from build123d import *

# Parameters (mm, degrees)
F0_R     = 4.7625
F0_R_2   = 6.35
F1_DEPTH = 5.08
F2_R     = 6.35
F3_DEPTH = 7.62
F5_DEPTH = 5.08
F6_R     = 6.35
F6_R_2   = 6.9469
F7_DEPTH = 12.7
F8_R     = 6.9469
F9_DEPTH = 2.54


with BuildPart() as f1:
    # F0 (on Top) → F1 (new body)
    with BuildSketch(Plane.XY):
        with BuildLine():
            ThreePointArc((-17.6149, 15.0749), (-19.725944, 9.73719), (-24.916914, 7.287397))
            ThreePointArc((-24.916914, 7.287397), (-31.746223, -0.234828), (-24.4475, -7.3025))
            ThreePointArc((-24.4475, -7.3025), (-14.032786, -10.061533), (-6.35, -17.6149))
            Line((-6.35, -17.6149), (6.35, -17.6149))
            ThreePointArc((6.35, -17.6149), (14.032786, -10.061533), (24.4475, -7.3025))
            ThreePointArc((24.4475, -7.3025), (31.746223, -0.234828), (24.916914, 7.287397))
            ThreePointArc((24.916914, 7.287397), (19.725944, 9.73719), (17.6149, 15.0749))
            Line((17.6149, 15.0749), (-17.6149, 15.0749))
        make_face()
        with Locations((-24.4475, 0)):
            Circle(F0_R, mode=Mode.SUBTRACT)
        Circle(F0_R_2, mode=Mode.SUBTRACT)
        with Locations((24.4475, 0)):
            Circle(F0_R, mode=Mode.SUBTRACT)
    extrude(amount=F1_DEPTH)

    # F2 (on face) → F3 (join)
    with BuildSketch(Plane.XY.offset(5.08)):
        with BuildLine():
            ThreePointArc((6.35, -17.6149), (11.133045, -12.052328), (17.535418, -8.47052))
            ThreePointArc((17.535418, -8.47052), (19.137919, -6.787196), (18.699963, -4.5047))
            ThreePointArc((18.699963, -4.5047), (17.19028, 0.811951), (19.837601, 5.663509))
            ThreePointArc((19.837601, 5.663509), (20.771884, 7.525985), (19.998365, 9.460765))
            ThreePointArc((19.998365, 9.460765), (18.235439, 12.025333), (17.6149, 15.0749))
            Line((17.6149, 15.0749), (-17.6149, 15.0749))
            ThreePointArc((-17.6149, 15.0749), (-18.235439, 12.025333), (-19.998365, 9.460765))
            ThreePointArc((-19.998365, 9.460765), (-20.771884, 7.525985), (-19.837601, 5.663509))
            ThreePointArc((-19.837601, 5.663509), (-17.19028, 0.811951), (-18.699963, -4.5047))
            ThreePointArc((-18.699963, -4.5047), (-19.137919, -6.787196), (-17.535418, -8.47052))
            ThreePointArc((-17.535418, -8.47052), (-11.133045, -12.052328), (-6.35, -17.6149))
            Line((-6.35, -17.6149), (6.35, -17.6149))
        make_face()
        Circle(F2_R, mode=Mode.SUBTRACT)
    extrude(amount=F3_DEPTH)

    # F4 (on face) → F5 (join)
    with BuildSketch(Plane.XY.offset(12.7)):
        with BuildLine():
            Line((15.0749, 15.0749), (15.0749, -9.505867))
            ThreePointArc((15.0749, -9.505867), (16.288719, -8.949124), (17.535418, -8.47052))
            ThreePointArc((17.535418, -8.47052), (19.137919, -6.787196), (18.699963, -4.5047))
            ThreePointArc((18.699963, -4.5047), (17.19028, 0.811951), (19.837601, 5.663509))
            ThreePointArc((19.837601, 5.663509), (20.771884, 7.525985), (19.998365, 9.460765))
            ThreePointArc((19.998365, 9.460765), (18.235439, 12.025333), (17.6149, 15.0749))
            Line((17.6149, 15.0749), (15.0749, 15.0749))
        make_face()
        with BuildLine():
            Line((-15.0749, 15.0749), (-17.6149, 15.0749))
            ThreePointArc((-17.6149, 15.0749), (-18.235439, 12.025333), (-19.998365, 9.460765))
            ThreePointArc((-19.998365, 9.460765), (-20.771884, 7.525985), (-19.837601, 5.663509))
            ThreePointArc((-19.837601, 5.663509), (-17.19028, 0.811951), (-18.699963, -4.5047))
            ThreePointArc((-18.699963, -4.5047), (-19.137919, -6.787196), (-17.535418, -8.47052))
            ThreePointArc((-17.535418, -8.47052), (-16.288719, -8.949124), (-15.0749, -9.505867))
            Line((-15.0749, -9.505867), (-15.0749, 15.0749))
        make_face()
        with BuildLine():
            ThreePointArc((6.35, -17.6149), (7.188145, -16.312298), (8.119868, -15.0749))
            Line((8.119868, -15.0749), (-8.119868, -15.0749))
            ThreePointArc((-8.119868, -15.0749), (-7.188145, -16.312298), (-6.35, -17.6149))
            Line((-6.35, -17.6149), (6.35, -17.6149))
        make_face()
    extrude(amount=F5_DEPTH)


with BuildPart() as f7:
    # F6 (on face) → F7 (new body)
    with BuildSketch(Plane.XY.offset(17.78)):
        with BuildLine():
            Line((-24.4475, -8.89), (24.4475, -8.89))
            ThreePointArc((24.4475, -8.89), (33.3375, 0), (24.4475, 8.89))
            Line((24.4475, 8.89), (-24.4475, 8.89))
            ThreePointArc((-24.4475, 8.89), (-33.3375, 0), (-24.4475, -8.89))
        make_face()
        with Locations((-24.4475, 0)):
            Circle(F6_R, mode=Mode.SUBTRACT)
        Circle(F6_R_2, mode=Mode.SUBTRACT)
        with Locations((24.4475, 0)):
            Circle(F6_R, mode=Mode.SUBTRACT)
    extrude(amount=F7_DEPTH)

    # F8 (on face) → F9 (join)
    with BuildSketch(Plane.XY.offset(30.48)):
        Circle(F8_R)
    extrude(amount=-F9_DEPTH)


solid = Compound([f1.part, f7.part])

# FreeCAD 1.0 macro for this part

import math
import FreeCAD as App
import Part
import Sketcher
Q = App.Units.Quantity

doc = App.newDocument("Part")
body = doc.addObject("PartDesign::Body", "Body")

# Sketch on XY plane
sketch1 = doc.addObject("Sketcher::SketchObject", "Sketch")
body.addObject(sketch1)
sketch1.AttachmentSupport = (doc.XY_Plane, [""])
sketch1.MapMode = "FlatFace"
sketch1.addGeometry([
    Part.ArcOfCircle(Part.Circle(App.Vector(-25.4, 15.1, 0), App.Vector(0, 0, 1), 7.8), math.radians(-86), math.radians(0)),  # 0
    Part.ArcOfCircle(Part.Circle(App.Vector(-24.4, 0, 0), App.Vector(0, 0, 1), 7.3), math.radians(94), math.radians(270)),  # 1
    Part.ArcOfCircle(Part.Circle(App.Vector(-24.4, -28.3, 0), App.Vector(0, 0, 1), 21), math.radians(31), math.radians(90)),  # 2
    Part.LineSegment(App.Vector(-6.3, -17.6, 0), App.Vector(6.3, -17.6, 0)),  # 3
    Part.ArcOfCircle(Part.Circle(App.Vector(24.4, -28.3, 0), App.Vector(0, 0, 1), 21), math.radians(90), math.radians(149)),  # 4
    Part.ArcOfCircle(Part.Circle(App.Vector(24.4, 0, 0), App.Vector(0, 0, 1), 7.3), math.radians(-90), math.radians(86)),  # 5
    Part.ArcOfCircle(Part.Circle(App.Vector(25.4, 15.1, 0), App.Vector(0, 0, 1), 7.8), math.radians(-180), math.radians(-94)),  # 6
    Part.LineSegment(App.Vector(17.6, 15.1, 0), App.Vector(-17.6, 15.1, 0)),  # 7
    Part.Circle(App.Vector(-24.4, 0, 0), App.Vector(0, 0, 1), 4.8),  # 8
    Part.Circle(App.Vector(0, 0, 0), App.Vector(0, 0, 1), 6.3),  # 9
    Part.Circle(App.Vector(24.4, 0, 0), App.Vector(0, 0, 1), 4.8),  # 10
], False)
sketch1.addConstraint([
    Sketcher.Constraint("Tangent", 0, 1, 1, 1),
    Sketcher.Constraint("Tangent", 1, 2, 2, 2),
    Sketcher.Constraint("Coincident", 2, 1, 3, 1),
    Sketcher.Constraint("Coincident", 3, 2, 4, 2),
    Sketcher.Constraint("Tangent", 4, 1, 5, 1),
    Sketcher.Constraint("Tangent", 5, 2, 6, 2),
    Sketcher.Constraint("Coincident", 6, 1, 7, 1),
    Sketcher.Constraint("Coincident", 7, 2, 0, 2),
    Sketcher.Constraint("Horizontal", 3),
    Sketcher.Constraint("Horizontal", 7),
    Sketcher.Constraint("Coincident", 9, 3, -1, 1),
    Sketcher.Constraint("Coincident", 8, 3, 1, 3),
    Sketcher.Constraint("Coincident", 10, 3, 5, 3),
    Sketcher.Constraint("Equal", 2, 4),
    Sketcher.Constraint("Equal", 1, 5),
    Sketcher.Constraint("Equal", 0, 6),
    Sketcher.Constraint("Equal", 8, 10),
    Sketcher.Constraint("Symmetric", 1, 3, 5, 3, -1, 1),
    Sketcher.Constraint("Symmetric", 2, 3, 4, 3, -2),
    Sketcher.Constraint("Horizontal", 0, 3, 6, 3),
    Sketcher.Constraint("Horizontal", 0, 3, 6, 1),
    Sketcher.Constraint("Vertical", 1, 3, 2, 3),
    Sketcher.Constraint("Diameter", 9, Q("0.5 in")),
    Sketcher.Constraint("Diameter", 8, Q("0.375 in")),
    Sketcher.Constraint("DistanceX", 3, 1, 3, 2, Q("0.5 in")),
    Sketcher.Constraint("Radius", 1, Q("0.2875 in")),
    Sketcher.Constraint("DistanceX", 7, 2, 7, 1, Q("1.387 in")),
    Sketcher.Constraint("DistanceX", 2, 3, 4, 3, Q("1.9249999 in")),
    Sketcher.Constraint("DistanceY", 1, 2, 0, 3, Q("0.8810001 in")),
    Sketcher.Constraint("DistanceY", 2, 1, 1, 2, Q("0.406 in")),
])
pad1 = doc.addObject("PartDesign::Pad", "Pad")
body.addObject(pad1)
pad1.Profile = sketch1
pad1.Length = Q("0.2 in")

# Sketch on XY plane
sketch2 = doc.addObject("Sketcher::SketchObject", "Sketch001")
body.addObject(sketch2)
sketch2.AttachmentSupport = (doc.XY_Plane, [""])
sketch2.MapMode = "FlatFace"
sketch2.AttachmentOffset = App.Placement(App.Vector(0, 0, 0.2 * 25.4), App.Rotation())
sketch2.addGeometry([
    Part.ArcOfCircle(Part.Circle(App.Vector(24.4, -28.3, 0), App.Vector(0, 0, 1), 21), math.radians(109), math.radians(149)),  # 0
    Part.ArcOfCircle(Part.Circle(App.Vector(16.7, -6.1, 0), App.Vector(0, 0, 1), 2.5), math.radians(-71), math.radians(38)),  # 1
    Part.ArcOfCircle(Part.Circle(App.Vector(24.4, 0, 0), App.Vector(0, 0, 1), 7.3), math.radians(129), math.radians(218)),  # 2
    Part.ArcOfCircle(Part.Circle(App.Vector(18.2, 7.6, 0), App.Vector(0, 0, 1), 2.5), math.radians(-51), math.radians(46)),  # 3
    Part.ArcOfCircle(Part.Circle(App.Vector(25.4, 15.1, 0), App.Vector(0, 0, 1), 7.8), math.radians(-180), math.radians(-134)),  # 4
    Part.LineSegment(App.Vector(17.6, 15.1, 0), App.Vector(-17.6, 15.1, 0)),  # 5
    Part.ArcOfCircle(Part.Circle(App.Vector(-25.4, 15.1, 0), App.Vector(0, 0, 1), 7.8), math.radians(-46), math.radians(0)),  # 6
    Part.ArcOfCircle(Part.Circle(App.Vector(-18.2, 7.6, 0), App.Vector(0, 0, 1), 2.5), math.radians(134), math.radians(231)),  # 7
    Part.ArcOfCircle(Part.Circle(App.Vector(-24.4, 0, 0), App.Vector(0, 0, 1), 7.3), math.radians(-38), math.radians(51)),  # 8
    Part.ArcOfCircle(Part.Circle(App.Vector(-16.7, -6.1, 0), App.Vector(0, 0, 1), 2.5), math.radians(142), math.radians(251)),  # 9
    Part.ArcOfCircle(Part.Circle(App.Vector(-24.4, -28.3, 0), App.Vector(0, 0, 1), 21), math.radians(31), math.radians(71)),  # 10
    Part.LineSegment(App.Vector(-6.3, -17.6, 0), App.Vector(6.3, -17.6, 0)),  # 11
    Part.Circle(App.Vector(0, 0, 0), App.Vector(0, 0, 1), 6.3),  # 12
], False)
sketch2.addConstraint([
    Sketcher.Constraint("Tangent", 0, 1, 1, 1),
    Sketcher.Constraint("Tangent", 1, 2, 2, 2),
    Sketcher.Constraint("Tangent", 2, 1, 3, 1),
    Sketcher.Constraint("Tangent", 3, 2, 4, 2),
    Sketcher.Constraint("Coincident", 4, 1, 5, 1),
    Sketcher.Constraint("Coincident", 5, 2, 6, 2),
    Sketcher.Constraint("Tangent", 6, 1, 7, 1),
    Sketcher.Constraint("Tangent", 7, 2, 8, 2),
    Sketcher.Constraint("Tangent", 8, 1, 9, 1),
    Sketcher.Constraint("Tangent", 9, 2, 10, 2),
    Sketcher.Constraint("Coincident", 10, 1, 11, 1),
    Sketcher.Constraint("Coincident", 11, 2, 0, 2),
    Sketcher.Constraint("Horizontal", 5),
    Sketcher.Constraint("Horizontal", 11),
    Sketcher.Constraint("Coincident", 12, 3, -1, 1),
    Sketcher.Constraint("Equal", 1, 3),
    Sketcher.Constraint("Equal", 4, 6),
    Sketcher.Constraint("Equal", 3, 7),
    Sketcher.Constraint("Equal", 2, 8),
    Sketcher.Constraint("Equal", 7, 9),
    Sketcher.Constraint("Equal", 0, 10),
    Sketcher.Constraint("Symmetric", 2, 3, 8, 3, -1, 1),
    Sketcher.Constraint("Symmetric", 4, 3, 6, 3, -2),
    Sketcher.Constraint("Symmetric", 1, 3, 9, 3, -2),
    Sketcher.Constraint("Horizontal", 0, 3, 10, 3),
    Sketcher.Constraint("Horizontal", 6, 3, 4, 1),
    Sketcher.Constraint("Diameter", 12, Q("0.5 in")),
    Sketcher.Constraint("Radius", 1, Q("0.1 in")),
    Sketcher.Constraint("DistanceX", 11, 1, 11, 2, Q("0.5 in")),
    Sketcher.Constraint("Radius", 2, Q("0.2875 in")),
    Sketcher.Constraint("DistanceX", 5, 2, 5, 1, Q("1.387 in")),
    Sketcher.Constraint("DistanceX", 8, 3, 2, 3, Q("1.9249999 in")),
    Sketcher.Constraint("DistanceY", -1, 1, 4, 3, Q("0.5935 in")),
    Sketcher.Constraint("DistanceY", 10, 1, -1, 1, Q("0.6935 in")),
    Sketcher.Constraint("Radius", 0, Q("21.036095 mm")),
    Sketcher.Constraint("Radius", 4, Q("7.803643 mm")),
    Sketcher.Constraint("DistanceY", 1, 2, -1, 1, Q("4.5047 mm")),
])
pad2 = doc.addObject("PartDesign::Pad", "Pad001")
body.addObject(pad2)
pad2.Profile = sketch2
pad2.Length = Q("0.3 in")

# Sketch on XY plane
sketch3 = doc.addObject("Sketcher::SketchObject", "Sketch002")
body.addObject(sketch3)
sketch3.AttachmentSupport = (doc.XY_Plane, [""])
sketch3.MapMode = "FlatFace"
sketch3.AttachmentOffset = App.Placement(App.Vector(0, 0, 0.5 * 25.4), App.Rotation())
sketch3.addGeometry([
    Part.LineSegment(App.Vector(15.1, 15.1, 0), App.Vector(15.1, -9.5, 0)),  # 0
    Part.ArcOfCircle(Part.Circle(App.Vector(24.4, -28.3, 0), App.Vector(0, 0, 1), 21), math.radians(109.18), math.radians(116.46)),  # 1
    Part.ArcOfCircle(Part.Circle(App.Vector(16.7, -6.1, 0), App.Vector(0, 0, 1), 2.5), math.radians(-71), math.radians(38)),  # 2
    Part.ArcOfCircle(Part.Circle(App.Vector(24.4, 0, 0), App.Vector(0, 0, 1), 7.3), math.radians(129), math.radians(218)),  # 3
    Part.ArcOfCircle(Part.Circle(App.Vector(18.2, 7.6, 0), App.Vector(0, 0, 1), 2.5), math.radians(-51), math.radians(46)),  # 4
    Part.ArcOfCircle(Part.Circle(App.Vector(25.4, 15.1, 0), App.Vector(0, 0, 1), 7.8), math.radians(-180), math.radians(-134)),  # 5
    Part.LineSegment(App.Vector(17.6, 15.1, 0), App.Vector(15.1, 15.1, 0)),  # 6
    Part.LineSegment(App.Vector(-15.1, 15.1, 0), App.Vector(-17.6, 15.1, 0)),  # 7
    Part.ArcOfCircle(Part.Circle(App.Vector(-25.4, 15.1, 0), App.Vector(0, 0, 1), 7.8), math.radians(-46), math.radians(0)),  # 8
    Part.ArcOfCircle(Part.Circle(App.Vector(-18.2, 7.6, 0), App.Vector(0, 0, 1), 2.5), math.radians(134), math.radians(231)),  # 9
    Part.ArcOfCircle(Part.Circle(App.Vector(-24.4, 0, 0), App.Vector(0, 0, 1), 7.3), math.radians(-38), math.radians(51)),  # 10
    Part.ArcOfCircle(Part.Circle(App.Vector(-16.7, -6.1, 0), App.Vector(0, 0, 1), 2.5), math.radians(142), math.radians(251)),  # 11
    Part.ArcOfCircle(Part.Circle(App.Vector(-24.4, -28.3, 0), App.Vector(0, 0, 1), 21), math.radians(63.54), math.radians(70.82)),  # 12
    Part.LineSegment(App.Vector(-15.1, -9.5, 0), App.Vector(-15.1, 15.1, 0)),  # 13
    Part.ArcOfCircle(Part.Circle(App.Vector(24.4, -28.3, 0), App.Vector(0, 0, 1), 21), math.radians(140.91), math.radians(149.35)),  # 14
    Part.LineSegment(App.Vector(8.1, -15.1, 0), App.Vector(-8.1, -15.1, 0)),  # 15
    Part.ArcOfCircle(Part.Circle(App.Vector(-24.4, -28.3, 0), App.Vector(0, 0, 1), 21), math.radians(30.65), math.radians(39.09)),  # 16
    Part.LineSegment(App.Vector(-6.3, -17.6, 0), App.Vector(6.3, -17.6, 0)),  # 17
], False)
sketch3.addConstraint([
    Sketcher.Constraint("Coincident", 0, 2, 1, 2),
    Sketcher.Constraint("Tangent", 1, 1, 2, 1),
    Sketcher.Constraint("Tangent", 2, 2, 3, 2),
    Sketcher.Constraint("Tangent", 3, 1, 4, 1),
    Sketcher.Constraint("Tangent", 4, 2, 5, 2),
    Sketcher.Constraint("Coincident", 5, 1, 6, 1),
    Sketcher.Constraint("Coincident", 6, 2, 0, 1),
    Sketcher.Constraint("Coincident", 7, 2, 8, 2),
    Sketcher.Constraint("Tangent", 8, 1, 9, 1),
    Sketcher.Constraint("Tangent", 9, 2, 10, 2),
    Sketcher.Constraint("Tangent", 10, 1, 11, 1),
    Sketcher.Constraint("Tangent", 11, 2, 12, 2),
    Sketcher.Constraint("Coincident", 12, 1, 13, 1),
    Sketcher.Constraint("Coincident", 13, 2, 7, 1),
    Sketcher.Constraint("Coincident", 14, 1, 15, 1),
    Sketcher.Constraint("Coincident", 15, 2, 16, 2),
    Sketcher.Constraint("Coincident", 16, 1, 17, 1),
    Sketcher.Constraint("Coincident", 17, 2, 14, 2),
    Sketcher.Constraint("Vertical", 0),
    Sketcher.Constraint("Horizontal", 6),
    Sketcher.Constraint("Horizontal", 7),
    Sketcher.Constraint("Vertical", 13),
    Sketcher.Constraint("Horizontal", 15),
    Sketcher.Constraint("Horizontal", 17),
    Sketcher.Constraint("Equal", 2, 4),
    Sketcher.Constraint("Equal", 5, 8),
    Sketcher.Constraint("Equal", 4, 9),
    Sketcher.Constraint("Equal", 3, 10),
    Sketcher.Constraint("Equal", 9, 11),
    Sketcher.Constraint("Equal", 1, 12),
    Sketcher.Constraint("Equal", 14, 16),
    Sketcher.Constraint("Symmetric", 3, 3, 10, 3, -1, 1),
    Sketcher.Constraint("Symmetric", 5, 3, 8, 3, -2),
    Sketcher.Constraint("Symmetric", 2, 3, 11, 3, -2),
    Sketcher.Constraint("Symmetric", 14, 3, 16, 3, -2),
    Sketcher.Constraint("Symmetric", 0, 2, 12, 1, -2),
    Sketcher.Constraint("Horizontal", 8, 3, 5, 1),
    Sketcher.Constraint("Horizontal", 6, 2, 7, 2),
    Sketcher.Constraint("Radius", 2, Q("0.1 in")),
    Sketcher.Constraint("DistanceX", 6, 2, 6, 1, Q("0.1 in")),
    Sketcher.Constraint("DistanceX", 17, 1, 17, 2, Q("0.5 in")),
    Sketcher.Constraint("Radius", 3, Q("0.2875 in")),
    Sketcher.Constraint("DistanceY", 16, 1, 15, 2, Q("0.1 in")),
    Sketcher.Constraint("Radius", 1, Q("21.03592 mm")),
    Sketcher.Constraint("DistanceX", 10, 3, 3, 3, Q("1.9249999 in")),
    Sketcher.Constraint("DistanceX", 0, 2, 3, 3, Q("0.369 in")),
    Sketcher.Constraint("DistanceY", -1, 1, 5, 3, Q("0.5935 in")),
    Sketcher.Constraint("DistanceY", 14, 1, -1, 1, Q("0.5935 in")),
    Sketcher.Constraint("Radius", 5, Q("7.803643 mm")),
    Sketcher.Constraint("Radius", 14, Q("21.036107 mm")),
    Sketcher.Constraint("DistanceY", 14, 3, -1, 1, Q("28.338599 mm")),
    Sketcher.Constraint("DistanceY", 2, 2, -1, 1, Q("4.5047 mm")),
    Sketcher.Constraint("DistanceX", 2, 3, 1, 1, Q("0.834599 mm")),
])
pad3 = doc.addObject("PartDesign::Pad", "Pad002")
body.addObject(pad3)
pad3.Profile = sketch3
pad3.Length = Q("0.2 in")
body2 = doc.addObject("PartDesign::Body", "Body001")

# Sketch on XY plane
sketch4 = doc.addObject("Sketcher::SketchObject", "Sketch003")
body2.addObject(sketch4)
sketch4.AttachmentSupport = (doc.getObject("XY_Plane001"), [""])
sketch4.MapMode = "FlatFace"
sketch4.AttachmentOffset = App.Placement(App.Vector(0, 0, 0.7 * 25.4), App.Rotation())
sketch4.addGeometry([
    Part.LineSegment(App.Vector(-24, -9, 0), App.Vector(24, -9, 0)),  # 0
    Part.ArcOfCircle(Part.Circle(App.Vector(24, 0, 0), App.Vector(0, 0, 1), 9), math.radians(-90), math.radians(90)),  # 1
    Part.LineSegment(App.Vector(24, 9, 0), App.Vector(-24, 9, 0)),  # 2
    Part.ArcOfCircle(Part.Circle(App.Vector(-24, 0, 0), App.Vector(0, 0, 1), 9), math.radians(90), math.radians(270)),  # 3
    Part.Circle(App.Vector(-24, 0, 0), App.Vector(0, 0, 1), 6),  # 4
    Part.Circle(App.Vector(0, 0, 0), App.Vector(0, 0, 1), 7),  # 5
    Part.Circle(App.Vector(24, 0, 0), App.Vector(0, 0, 1), 6),  # 6
], False)
sketch4.addConstraint([
    Sketcher.Constraint("Tangent", 0, 2, 1, 1),
    Sketcher.Constraint("Tangent", 1, 2, 2, 1),
    Sketcher.Constraint("Tangent", 2, 2, 3, 1),
    Sketcher.Constraint("Tangent", 3, 2, 0, 1),
    Sketcher.Constraint("Horizontal", 0),
    Sketcher.Constraint("Horizontal", 2),
    Sketcher.Constraint("Coincident", 5, 3, -1, 1),
    Sketcher.Constraint("Coincident", 4, 3, 3, 3),
    Sketcher.Constraint("Coincident", 6, 3, 1, 3),
    Sketcher.Constraint("Equal", 4, 6),
    Sketcher.Constraint("Symmetric", 1, 3, 3, 3, -1, 1),
    Sketcher.Constraint("Diameter", 4, Q("0.5 in")),
    Sketcher.Constraint("Radius", 1, Q("0.35 in")),
    Sketcher.Constraint("Diameter", 5, Q("0.547 in")),
    Sketcher.Constraint("DistanceX", 0, 1, 0, 2, Q("1.925 in")),
])
pad4 = doc.addObject("PartDesign::Pad", "Pad003")
body2.addObject(pad4)
pad4.Profile = sketch4
pad4.Length = Q("0.5 in")

# Sketch on XY plane
sketch5 = doc.addObject("Sketcher::SketchObject", "Sketch004")
body2.addObject(sketch5)
sketch5.AttachmentSupport = (doc.getObject("XY_Plane001"), [""])
sketch5.MapMode = "FlatFace"
sketch5.AttachmentOffset = App.Placement(App.Vector(0, 0, 1.2 * 25.4), App.Rotation())
sketch5.addGeometry(Part.Circle(App.Vector(0, 0, 0), App.Vector(0, 0, 1), 7), False)
sketch5.addConstraint([
    Sketcher.Constraint("Coincident", 0, 3, -1, 1),
    Sketcher.Constraint("Diameter", 0, Q("0.547 in")),
])
pad5 = doc.addObject("PartDesign::Pad", "Pad004")
body2.addObject(pad5)
pad5.Profile = sketch5
pad5.Length = Q("0.1 in")
pad5.Reversed = True

doc.recompute()
